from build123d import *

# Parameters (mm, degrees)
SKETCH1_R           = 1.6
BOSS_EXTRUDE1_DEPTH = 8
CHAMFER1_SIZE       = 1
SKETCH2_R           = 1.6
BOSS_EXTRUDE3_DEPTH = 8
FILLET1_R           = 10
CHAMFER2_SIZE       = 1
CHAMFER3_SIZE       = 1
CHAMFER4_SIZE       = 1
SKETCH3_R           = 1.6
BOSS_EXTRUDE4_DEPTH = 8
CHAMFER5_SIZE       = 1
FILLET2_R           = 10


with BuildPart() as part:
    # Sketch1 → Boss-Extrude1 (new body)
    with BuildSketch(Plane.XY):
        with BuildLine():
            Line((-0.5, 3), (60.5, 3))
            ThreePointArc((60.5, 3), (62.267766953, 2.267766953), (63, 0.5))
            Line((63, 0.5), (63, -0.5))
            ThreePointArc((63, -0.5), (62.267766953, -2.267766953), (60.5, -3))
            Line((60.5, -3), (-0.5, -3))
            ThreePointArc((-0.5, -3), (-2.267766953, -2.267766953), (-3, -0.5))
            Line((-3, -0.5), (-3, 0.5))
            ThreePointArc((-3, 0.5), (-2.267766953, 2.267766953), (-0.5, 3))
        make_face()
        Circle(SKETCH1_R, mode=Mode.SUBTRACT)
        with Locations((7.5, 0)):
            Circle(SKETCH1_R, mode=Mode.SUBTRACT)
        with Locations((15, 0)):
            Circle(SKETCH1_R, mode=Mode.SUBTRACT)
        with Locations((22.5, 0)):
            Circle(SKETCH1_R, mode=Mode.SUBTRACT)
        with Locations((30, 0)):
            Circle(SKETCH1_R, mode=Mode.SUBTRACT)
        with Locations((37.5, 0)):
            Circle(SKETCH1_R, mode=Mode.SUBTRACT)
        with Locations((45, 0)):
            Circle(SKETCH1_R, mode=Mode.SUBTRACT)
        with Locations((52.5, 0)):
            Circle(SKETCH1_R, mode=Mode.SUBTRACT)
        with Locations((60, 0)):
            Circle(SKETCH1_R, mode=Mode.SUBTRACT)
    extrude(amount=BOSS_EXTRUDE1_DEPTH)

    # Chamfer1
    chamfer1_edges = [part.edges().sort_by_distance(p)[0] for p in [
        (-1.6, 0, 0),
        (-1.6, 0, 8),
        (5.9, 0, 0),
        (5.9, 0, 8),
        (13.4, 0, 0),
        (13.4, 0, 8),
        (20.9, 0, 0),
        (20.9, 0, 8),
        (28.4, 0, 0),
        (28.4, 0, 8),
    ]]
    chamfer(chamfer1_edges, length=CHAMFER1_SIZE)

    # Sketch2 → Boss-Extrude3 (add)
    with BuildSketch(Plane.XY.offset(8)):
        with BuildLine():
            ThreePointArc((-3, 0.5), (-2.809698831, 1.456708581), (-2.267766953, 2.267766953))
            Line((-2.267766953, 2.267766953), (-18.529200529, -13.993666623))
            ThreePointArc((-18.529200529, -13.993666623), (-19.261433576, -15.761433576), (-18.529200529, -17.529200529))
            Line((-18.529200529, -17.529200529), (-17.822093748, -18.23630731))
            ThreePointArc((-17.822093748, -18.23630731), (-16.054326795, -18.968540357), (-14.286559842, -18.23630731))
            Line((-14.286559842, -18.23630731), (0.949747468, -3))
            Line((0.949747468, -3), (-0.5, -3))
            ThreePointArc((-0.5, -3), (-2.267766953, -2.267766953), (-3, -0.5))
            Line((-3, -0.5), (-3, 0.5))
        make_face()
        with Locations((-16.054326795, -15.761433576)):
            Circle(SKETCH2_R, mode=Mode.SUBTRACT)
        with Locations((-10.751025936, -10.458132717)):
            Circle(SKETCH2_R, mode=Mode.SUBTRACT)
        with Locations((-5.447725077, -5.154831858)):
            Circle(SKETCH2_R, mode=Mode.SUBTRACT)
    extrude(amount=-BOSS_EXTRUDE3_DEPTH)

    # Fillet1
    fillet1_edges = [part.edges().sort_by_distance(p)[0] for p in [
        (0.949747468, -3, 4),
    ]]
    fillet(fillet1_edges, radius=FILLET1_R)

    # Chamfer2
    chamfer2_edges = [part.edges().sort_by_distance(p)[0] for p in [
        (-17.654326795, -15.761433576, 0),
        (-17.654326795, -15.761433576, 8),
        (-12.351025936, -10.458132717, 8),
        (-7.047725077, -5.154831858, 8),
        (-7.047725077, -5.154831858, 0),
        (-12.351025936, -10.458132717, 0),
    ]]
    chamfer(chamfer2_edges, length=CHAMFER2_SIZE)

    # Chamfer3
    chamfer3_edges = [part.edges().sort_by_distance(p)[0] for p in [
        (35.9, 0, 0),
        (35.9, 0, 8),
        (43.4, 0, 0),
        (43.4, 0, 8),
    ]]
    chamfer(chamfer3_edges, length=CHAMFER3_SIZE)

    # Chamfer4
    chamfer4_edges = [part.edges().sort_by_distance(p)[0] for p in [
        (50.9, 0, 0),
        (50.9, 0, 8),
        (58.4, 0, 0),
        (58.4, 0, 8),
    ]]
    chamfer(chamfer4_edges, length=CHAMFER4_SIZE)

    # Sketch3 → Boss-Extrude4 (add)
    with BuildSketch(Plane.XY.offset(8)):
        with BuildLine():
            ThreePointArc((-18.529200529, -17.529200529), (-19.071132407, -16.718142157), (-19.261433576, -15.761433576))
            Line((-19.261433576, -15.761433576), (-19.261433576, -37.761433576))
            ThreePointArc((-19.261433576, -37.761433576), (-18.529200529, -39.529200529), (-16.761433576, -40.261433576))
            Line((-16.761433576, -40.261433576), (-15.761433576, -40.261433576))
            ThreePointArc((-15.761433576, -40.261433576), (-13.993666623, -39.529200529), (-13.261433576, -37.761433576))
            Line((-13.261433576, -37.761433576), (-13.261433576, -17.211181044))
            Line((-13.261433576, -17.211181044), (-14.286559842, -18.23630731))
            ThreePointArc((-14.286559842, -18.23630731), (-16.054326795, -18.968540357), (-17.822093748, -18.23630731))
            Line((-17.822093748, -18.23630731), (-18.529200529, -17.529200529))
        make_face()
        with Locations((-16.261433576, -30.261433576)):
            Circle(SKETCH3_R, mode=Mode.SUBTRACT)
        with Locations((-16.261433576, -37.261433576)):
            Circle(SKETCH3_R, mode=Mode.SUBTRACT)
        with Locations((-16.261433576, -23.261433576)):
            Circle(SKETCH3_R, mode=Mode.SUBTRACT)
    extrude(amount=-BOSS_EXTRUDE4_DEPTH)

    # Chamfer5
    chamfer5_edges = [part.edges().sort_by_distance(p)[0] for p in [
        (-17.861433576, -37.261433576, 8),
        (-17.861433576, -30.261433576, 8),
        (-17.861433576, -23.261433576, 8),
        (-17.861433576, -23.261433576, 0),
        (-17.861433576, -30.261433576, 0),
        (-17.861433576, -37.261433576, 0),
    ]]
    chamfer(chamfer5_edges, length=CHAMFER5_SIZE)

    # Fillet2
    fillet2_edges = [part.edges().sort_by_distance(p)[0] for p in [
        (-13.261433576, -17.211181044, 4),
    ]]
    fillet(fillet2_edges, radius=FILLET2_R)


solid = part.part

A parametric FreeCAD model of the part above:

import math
import FreeCAD as App
import Part
import Sketcher

V = App.Vector


def edges_at(feature, points):
    """Names of the edges that pass closest to the given points."""
    edges = feature.Shape.Edges
    near = lambda p: min(range(len(edges)), key=lambda i: edges[i].distToShape(Part.Vertex(*p))[0])
    return sorted({f"Edge{near(p) + 1}" for p in points})

doc = App.newDocument("Part")
body = doc.addObject("PartDesign::Body", "Body")

# Sketch on XY plane
sketch1 = body.newObject("Sketcher::SketchObject", "Sketch")
sketch1.AttachmentSupport = (doc.getObject("XY_Plane"), [""])
sketch1.MapMode = "FlatFace"
sketch1.addGeometry([
    Part.LineSegment(V(60.5, 3, 0), V(-0.5, 3, 0)),  # 0
    Part.ArcOfCircle(Part.Circle(V(-0.5, 0.5, 0), V(0, 0, 1), 2.5), math.radians(90), math.radians(180)),  # 1
    Part.LineSegment(V(-3, 0.5, 0), V(-3, -0.5, 0)),  # 2
    Part.ArcOfCircle(Part.Circle(V(-0.5, -0.5, 0), V(0, 0, 1), 2.5), math.radians(180), math.radians(270)),  # 3
    Part.LineSegment(V(-0.5, -3, 0), V(60.5, -3, 0)),  # 4
    Part.ArcOfCircle(Part.Circle(V(60.5, -0.5, 0), V(0, 0, 1), 2.5), math.radians(-90), math.radians(0)),  # 5
    Part.LineSegment(V(63, -0.5, 0), V(63, 0.5, 0)),  # 6
    Part.ArcOfCircle(Part.Circle(V(60.5, 0.5, 0), V(0, 0, 1), 2.5), math.radians(0), math.radians(90)),  # 7
    Part.Circle(V(60, 0, 0), V(0, 0, 1), 1.6),  # 8
    Part.Circle(V(52.5, 0, 0), V(0, 0, 1), 1.6),  # 9
    Part.Circle(V(45, 0, 0), V(0, 0, 1), 1.6),  # 10
    Part.Circle(V(37.5, 0, 0), V(0, 0, 1), 1.6),  # 11
    Part.Circle(V(30, 0, 0), V(0, 0, 1), 1.6),  # 12
    Part.Circle(V(22.5, 0, 0), V(0, 0, 1), 1.6),  # 13
    Part.Circle(V(15, 0, 0), V(0, 0, 1), 1.6),  # 14
    Part.Circle(V(7.5, 0, 0), V(0, 0, 1), 1.6),  # 15
    Part.Circle(V(0, 0, 0), V(0, 0, 1), 1.6),  # 16
], False)
sketch1.addConstraint([
    Sketcher.Constraint("Tangent", 0, 2, 1, 1),
    Sketcher.Constraint("Tangent", 1, 2, 2, 1),
    Sketcher.Constraint("Tangent", 2, 2, 3, 1),
    Sketcher.Constraint("Tangent", 3, 2, 4, 1),
    Sketcher.Constraint("Tangent", 4, 2, 5, 1),
    Sketcher.Constraint("Tangent", 5, 2, 6, 1),
    Sketcher.Constraint("Tangent", 6, 2, 7, 1),
    Sketcher.Constraint("Tangent", 7, 2, 0, 1),
    Sketcher.Constraint("Horizontal", 0),
    Sketcher.Constraint("Vertical", 2),
    Sketcher.Constraint("Horizontal", 4),
    Sketcher.Constraint("Vertical", 6),
    Sketcher.Constraint("Coincident", 16, 3, -1, 1),
    Sketcher.Constraint("Equal", 1, 3),
    Sketcher.Constraint("Equal", 3, 5),
    Sketcher.Constraint("Equal", 5, 7),
    Sketcher.Constraint("Equal", 8, 9),
    Sketcher.Constraint("Equal", 9, 10),
    Sketcher.Constraint("Equal", 10, 11),
    Sketcher.Constraint("Equal", 11, 12),
    Sketcher.Constraint("Equal", 12, 13),
    Sketcher.Constraint("Equal", 13, 14),
    Sketcher.Constraint("Equal", 14, 15),
    Sketcher.Constraint("Equal", 15, 16),
    Sketcher.Constraint("PointOnObject", 8, 3, -1),
    Sketcher.Constraint("PointOnObject", 9, 3, -1),
    Sketcher.Constraint("PointOnObject", 10, 3, -1),
    Sketcher.Constraint("PointOnObject", 11, 3, -1),
    Sketcher.Constraint("PointOnObject", 12, 3, -1),
    Sketcher.Constraint("PointOnObject", 13, 3, -1),
    Sketcher.Constraint("PointOnObject", 14, 3, -1),
    Sketcher.Constraint("PointOnObject", 15, 3, -1),
    Sketcher.Constraint("Diameter", 8, 3.2),
    Sketcher.Constraint("Radius", 1, 2.5),
    Sketcher.Constraint("DistanceX", 0, 2, 0, 1, 61.0),
    Sketcher.Constraint("DistanceY", 2, 2, 2, 1, 1.0),
    Sketcher.Constraint("DistanceX", -1, 1, 8, 3, 60.0),
    Sketcher.Constraint("DistanceX", -1, 1, 10, 3, 45.0),
    Sketcher.Constraint("DistanceX", -1, 1, 12, 3, 30.0),
    Sketcher.Constraint("DistanceX", -1, 1, 14, 3, 15.0),
    Sketcher.Constraint("DistanceY", -1, 1, 0, 2, 3.0),
    Sketcher.Constraint("DistanceX", 1, 2, -1, 1, 3.0),
    Sketcher.Constraint("DistanceX", 9, 3, 5, 3, 8.0),
    Sketcher.Constraint("DistanceX", 11, 3, 9, 3, 15.0),
    Sketcher.Constraint("DistanceX", 13, 3, 11, 3, 15.0),
    Sketcher.Constraint("DistanceX", 1, 3, 15, 3, 8.0),
])
pad1 = body.newObject("PartDesign::Pad", "Pad")
pad1.Profile = sketch1
pad1.Length = 8
doc.recompute()

chamfer = body.newObject("PartDesign::Chamfer", "Chamfer")
chamfer.Base = (pad1, edges_at(pad1, [
    (-1.6, 0, 0),
    (-1.6, 0, 8),
    (5.9, 0, 0),
    (5.9, 0, 8),
    (13.4, 0, 0),
    (13.4, 0, 8),
    (20.9, 0, 0),
    (20.9, 0, 8),
    (28.4, 0, 0),
    (28.4, 0, 8),
]))
chamfer.Size = 1

# Sketch on XY plane
sketch2 = body.newObject("Sketcher::SketchObject", "Sketch001")
sketch2.AttachmentSupport = (doc.getObject("XY_Plane"), [""])
sketch2.MapMode = "FlatFace"
sketch2.AttachmentOffset = App.Placement(V(0, 0, 8), App.Rotation())
sketch2.addGeometry([
    Part.ArcOfCircle(Part.Circle(V(-0.5, 0.5, 0), V(0, 0, 1), 2.5), math.radians(135), math.radians(180)),  # 0
    Part.LineSegment(V(-2.267767, 2.267767, 0), V(-18.529201, -13.993667, 0)),  # 1
    Part.ArcOfCircle(Part.Circle(V(-16.761434, -15.761434, 0), V(0, 0, 1), 2.5), math.radians(135), math.radians(225)),  # 2
    Part.LineSegment(V(-18.529201, -17.529201, 0), V(-17.822094, -18.236307, 0)),  # 3
    Part.ArcOfCircle(Part.Circle(V(-16.054327, -16.46854, 0), V(0, 0, 1), 2.5), math.radians(-135), math.radians(-45)),  # 4
    Part.LineSegment(V(-14.28656, -18.236307, 0), V(0.949747, -3, 0)),  # 5
    Part.LineSegment(V(0.949747, -3, 0), V(-0.5, -3, 0)),  # 6
    Part.ArcOfCircle(Part.Circle(V(-0.5, -0.5, 0), V(0, 0, 1), 2.5), math.radians(180), math.radians(270)),  # 7
    Part.LineSegment(V(-3, -0.5, 0), V(-3, 0.5, 0)),  # 8
    Part.Circle(V(-16.054327, -15.761434, 0), V(0, 0, 1), 1.6),  # 9
    Part.Circle(V(-10.751026, -10.458133, 0), V(0, 0, 1), 1.6),  # 10
    Part.Circle(V(-5.447725, -5.154832, 0), V(0, 0, 1), 1.6),  # 11
], False)
sketch2.addConstraint([
    Sketcher.Constraint("Tangent", 0, 1, 1, 1),
    Sketcher.Constraint("Tangent", 1, 2, 2, 1),
    Sketcher.Constraint("Tangent", 2, 2, 3, 1),
    Sketcher.Constraint("Tangent", 3, 2, 4, 1),
    Sketcher.Constraint("Tangent", 4, 2, 5, 1),
    Sketcher.Constraint("Coincident", 5, 2, 6, 1),
    Sketcher.Constraint("Tangent", 6, 2, 7, 2),
    Sketcher.Constraint("Tangent", 7, 1, 8, 1),
    Sketcher.Constraint("Tangent", 8, 2, 0, 2),
    Sketcher.Constraint("Horizontal", 6),
    Sketcher.Constraint("Vertical", 8),
    Sketcher.Constraint("Equal", 0, 2),
    Sketcher.Constraint("Equal", 2, 4),
    Sketcher.Constraint("Equal", 4, 7),
    Sketcher.Constraint("Equal", 9, 10),
    Sketcher.Constraint("Equal", 10, 11),
    Sketcher.Constraint("Perpendicular", 1, 3),
    Sketcher.Constraint("Perpendicular", 3, 5),
    Sketcher.Constraint("Horizontal", 2, 3, 9, 3),
    Sketcher.Constraint("Horizontal", 3, 2, 4, 2),
    Sketcher.Constraint("Vertical", 4, 3, 9, 3),
    Sketcher.Constraint("Diameter", 9, 3.2),
    Sketcher.Constraint("Radius", 0, 2.5),
    Sketcher.Constraint("DistanceY", 8, 1, 8, 2, 1.0),
    Sketcher.Constraint("Distance", 3, 1.0),
    Sketcher.Constraint("DistanceY", 5, 2, -1, 1, 3.0),
    Sketcher.Constraint("DistanceX", 7, 1, -1, 1, 3.0),
    Sketcher.Constraint("DistanceX", 1, 2, -1, 1, 18.529201),
    Sketcher.Constraint("DistanceX", 9, 3, 10, 3, 5.303301),
    Sketcher.Constraint("DistanceY", 9, 3, 10, 3, 5.303301),
    Sketcher.Constraint("DistanceX", 10, 3, 11, 3, 5.303301),
    Sketcher.Constraint("DistanceY", 10, 3, 11, 3, 5.303301),
])
pad2 = body.newObject("PartDesign::Pad", "Pad001")
pad2.Profile = sketch2
pad2.Length = 8
pad2.Reversed = True
doc.recompute()

fillet = body.newObject("PartDesign::Fillet", "Fillet")
fillet.Base = (pad2, edges_at(pad2, [(0.95, -3, 4)]))
fillet.Radius = 10
doc.recompute()

chamfer2 = body.newObject("PartDesign::Chamfer", "Chamfer001")
chamfer2.Base = (fillet, edges_at(fillet, [
    (-17.654, -15.761, 0),
    (-17.654, -15.761, 8),
    (-12.351, -10.458, 8),
    (-7.048, -5.155, 8),
    (-7.048, -5.155, 0),
    (-12.351, -10.458, 0),
]))
chamfer2.Size = 1
doc.recompute()

chamfer3 = body.newObject("PartDesign::Chamfer", "Chamfer002")
chamfer3.Base = (chamfer2, edges_at(chamfer2, [
    (35.9, 0, 0),
    (35.9, 0, 8),
    (43.4, 0, 0),
    (43.4, 0, 8),
]))
chamfer3.Size = 1
doc.recompute()

chamfer4 = body.newObject("PartDesign::Chamfer", "Chamfer003")
chamfer4.Base = (chamfer3, edges_at(chamfer3, [
    (50.9, 0, 0),
    (50.9, 0, 8),
    (58.4, 0, 0),
    (58.4, 0, 8),
]))
chamfer4.Size = 1

# Sketch on XY plane
sketch3 = body.newObject("Sketcher::SketchObject", "Sketch002")
sketch3.AttachmentSupport = (doc.getObject("XY_Plane"), [""])
sketch3.MapMode = "FlatFace"
sketch3.AttachmentOffset = App.Placement(V(0, 0, 8), App.Rotation())
sketch3.addGeometry([
    Part.ArcOfCircle(Part.Circle(V(-16.761434, -15.761434, 0), V(0, 0, 1), 2.5), math.radians(-180), math.radians(-135)),  # 0
    Part.LineSegment(V(-19.261434, -15.761434, 0), V(-19.261434, -37.761434, 0)),  # 1
    Part.ArcOfCircle(Part.Circle(V(-16.761434, -37.761434, 0), V(0, 0, 1), 2.5), math.radians(180), math.radians(270)),  # 2
    Part.LineSegment(V(-16.761434, -40.261434, 0), V(-15.761434, -40.261434, 0)),  # 3
    Part.ArcOfCircle(Part.Circle(V(-15.761434, -37.761434, 0), V(0, 0, 1), 2.5), math.radians(-90), math.radians(0)),  # 4
    Part.LineSegment(V(-13.261434, -37.761434, 0), V(-13.261434, -17.211181, 0)),  # 5
    Part.LineSegment(V(-13.261434, -17.211181, 0), V(-14.28656, -18.236307, 0)),  # 6
    Part.ArcOfCircle(Part.Circle(V(-16.054327, -16.46854, 0), V(0, 0, 1), 2.5), math.radians(-135), math.radians(-45)),  # 7
    Part.LineSegment(V(-17.822094, -18.236307, 0), V(-18.529201, -17.529201, 0)),  # 8
    Part.Circle(V(-16.261434, -37.261434, 0), V(0, 0, 1), 1.6),  # 9
    Part.Circle(V(-16.261434, -30.261434, 0), V(0, 0, 1), 1.6),  # 10
    Part.Circle(V(-16.261434, -23.261434, 0), V(0, 0, 1), 1.6),  # 11
], False)
sketch3.addConstraint([
    Sketcher.Constraint("Tangent", 0, 1, 1, 1),
    Sketcher.Constraint("Tangent", 1, 2, 2, 1),
    Sketcher.Constraint("Tangent", 2, 2, 3, 1),
    Sketcher.Constraint("Tangent", 3, 2, 4, 1),
    Sketcher.Constraint("Tangent", 4, 2, 5, 1),
    Sketcher.Constraint("Coincident", 5, 2, 6, 1),
    Sketcher.Constraint("Tangent", 6, 2, 7, 2),
    Sketcher.Constraint("Tangent", 7, 1, 8, 1),
    Sketcher.Constraint("Tangent", 8, 2, 0, 2),
    Sketcher.Constraint("Vertical", 1),
    Sketcher.Constraint("Horizontal", 3),
    Sketcher.Constraint("Vertical", 5),
    Sketcher.Constraint("Equal", 0, 2),
    Sketcher.Constraint("Equal", 2, 4),
    Sketcher.Constraint("Equal", 4, 7),
    Sketcher.Constraint("Equal", 9, 10),
    Sketcher.Constraint("Equal", 10, 11),
    Sketcher.Constraint("Perpendicular", 6, 8),
    Sketcher.Constraint("Horizontal", 6, 2, 7, 1),
    Sketcher.Constraint("Vertical", 9, 3, 10, 3),
    Sketcher.Constraint("Vertical", 10, 3, 11, 3),
    Sketcher.Constraint("Diameter", 9, 3.2),
    Sketcher.Constraint("Radius", 0, 2.5),
    Sketcher.Constraint("DistanceX", 3, 1, 3, 2, 1.0),
    Sketcher.Constraint("DistanceY", 1, 2, 1, 1, 22.0),
    Sketcher.Constraint("Distance", 8, 1.0),
    Sketcher.Constraint("DistanceY", 9, 3, 10, 3, 7.0),
    Sketcher.Constraint("DistanceY", 10, 3, 11, 3, 7.0),
    Sketcher.Constraint("DistanceX", 0, 1, 11, 3, 3.0),
    Sketcher.Constraint("DistanceY", 2, 2, 9, 3, 3.0),
    Sketcher.Constraint("DistanceX", 8, 2, -1, 1, 18.529201),
    Sketcher.Constraint("DistanceY", 8, 2, -1, 1, 17.529201),
])
pad3 = body.newObject("PartDesign::Pad", "Pad002")
pad3.Profile = sketch3
pad3.Length = 8
pad3.Reversed = True
doc.recompute()

chamfer5 = body.newObject("PartDesign::Chamfer", "Chamfer004")
chamfer5.Base = (pad3, edges_at(pad3, [
    (-17.861, -37.261, 8),
    (-17.861, -30.261, 8),
    (-17.861, -23.261, 8),
    (-17.861, -23.261, 0),
    (-17.861, -30.261, 0),
    (-17.861, -37.261, 0),
]))
chamfer5.Size = 1
doc.recompute()

fillet2 = body.newObject("PartDesign::Fillet", "Fillet001")
fillet2.Base = (chamfer5, edges_at(chamfer5, [(-13.261, -17.211, 4)]))
fillet2.Radius = 10

doc.recompute()
